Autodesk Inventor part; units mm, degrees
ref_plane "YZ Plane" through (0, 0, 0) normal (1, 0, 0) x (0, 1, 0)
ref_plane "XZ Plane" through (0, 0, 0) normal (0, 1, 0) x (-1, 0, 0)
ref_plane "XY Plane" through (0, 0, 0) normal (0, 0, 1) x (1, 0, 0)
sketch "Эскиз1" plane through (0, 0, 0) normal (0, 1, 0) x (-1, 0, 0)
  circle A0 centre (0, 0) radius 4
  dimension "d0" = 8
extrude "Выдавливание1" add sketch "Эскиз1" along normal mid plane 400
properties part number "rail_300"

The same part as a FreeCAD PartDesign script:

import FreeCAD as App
import Part
import Sketcher
from FreeCAD import Vector
Q = App.Units.Quantity

doc = App.newDocument("Part")
body = doc.addObject("PartDesign::Body", "Body")

sketch1 = body.newObject("Sketcher::SketchObject", "Sketch")
sketch1.AttachmentSupport = (doc.getObject("XZ_Plane"), [""])
sketch1.MapMode = "FlatFace"
sketch1.addGeometry(Part.Circle(Vector(0, 0, 0), Vector(0, 0, 1), 4), False)
sketch1.addConstraint(Sketcher.Constraint("Coincident", 0, 3, -1, 1))
sketch1.addConstraint(Sketcher.Constraint("Diameter", 0, Q("8 mm")))
pad1 = body.newObject("PartDesign::Pad", "Pad")
pad1.Profile = sketch1
pad1.Length = 400
pad1.Midplane = True

doc.recompute()
